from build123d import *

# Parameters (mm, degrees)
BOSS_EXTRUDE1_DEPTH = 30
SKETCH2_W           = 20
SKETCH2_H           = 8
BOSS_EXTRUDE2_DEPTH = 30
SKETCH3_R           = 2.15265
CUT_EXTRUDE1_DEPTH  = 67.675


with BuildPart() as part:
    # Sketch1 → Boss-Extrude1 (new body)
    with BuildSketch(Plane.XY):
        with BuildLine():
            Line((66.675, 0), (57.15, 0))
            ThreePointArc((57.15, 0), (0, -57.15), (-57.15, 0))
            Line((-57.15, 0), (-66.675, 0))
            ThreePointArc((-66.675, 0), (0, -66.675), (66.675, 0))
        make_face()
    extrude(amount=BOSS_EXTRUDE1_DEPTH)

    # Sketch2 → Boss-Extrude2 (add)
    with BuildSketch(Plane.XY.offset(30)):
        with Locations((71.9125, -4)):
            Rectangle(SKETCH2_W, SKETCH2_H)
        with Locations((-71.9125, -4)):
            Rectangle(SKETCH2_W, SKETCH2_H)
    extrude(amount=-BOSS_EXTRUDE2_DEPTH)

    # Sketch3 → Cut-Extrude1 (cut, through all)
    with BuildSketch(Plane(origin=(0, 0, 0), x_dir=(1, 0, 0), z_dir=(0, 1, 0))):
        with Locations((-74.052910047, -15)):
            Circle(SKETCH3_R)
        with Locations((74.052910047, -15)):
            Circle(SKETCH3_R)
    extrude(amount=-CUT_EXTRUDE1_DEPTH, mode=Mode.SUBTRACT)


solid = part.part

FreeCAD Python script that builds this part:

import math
import FreeCAD as App
import Part
import Sketcher

V = App.Vector


def add_polygon(sketch, points):
    """Adds a closed chain of lines whose ends are joined by coincident constraints."""
    first, n = sketch.GeometryCount, len(points)
    for a, b in zip(points, points[1:] + points[:1]):
        sketch.addGeometry(Part.LineSegment(App.Vector(*a, 0), App.Vector(*b, 0)), False)
    for i in range(n):
        sketch.addConstraint(Sketcher.Constraint("Coincident", first + i, 2, first + (i + 1) % n, 1))

doc = App.newDocument("Part")
body = doc.addObject("PartDesign::Body", "Body")

# Sketch on XY plane
sketch1 = body.newObject("Sketcher::SketchObject", "Sketch")
sketch1.AttachmentSupport = (doc.getObject("XY_Plane"), [""])
sketch1.MapMode = "FlatFace"
sketch1.addGeometry(Part.LineSegment(V(66.675, 0, 0), V(57.15, 0, 0)), False)
sketch1.addGeometry(Part.ArcOfCircle(Part.Circle(V(0, 0, 0), V(0, 0, 1), 57.15), math.radians(180), math.radians(360)), False)
sketch1.addGeometry(Part.LineSegment(V(-57.15, 0, 0), V(-66.675, 0, 0)), False)
sketch1.addGeometry(Part.ArcOfCircle(Part.Circle(V(0, 0, 0), V(0, 0, 1), 66.675), math.radians(180), math.radians(360)), False)
sketch1.addConstraint(Sketcher.Constraint("Coincident", 0, 2, 1, 2))
sketch1.addConstraint(Sketcher.Constraint("Coincident", 1, 1, 2, 1))
sketch1.addConstraint(Sketcher.Constraint("Coincident", 2, 2, 3, 1))
sketch1.addConstraint(Sketcher.Constraint("Coincident", 3, 2, 0, 1))
sketch1.addConstraint(Sketcher.Constraint("Horizontal", 0))
sketch1.addConstraint(Sketcher.Constraint("Horizontal", 2))
sketch1.addConstraint(Sketcher.Constraint("Coincident", 1, 3, -1, 1))
sketch1.addConstraint(Sketcher.Constraint("Coincident", 3, 3, -1, 1))
sketch1.addConstraint(Sketcher.Constraint("PointOnObject", 0, 2, -1))
sketch1.addConstraint(Sketcher.Constraint("PointOnObject", 1, 1, -1))
sketch1.addConstraint(Sketcher.Constraint("Radius", 1, 57.15))
sketch1.addConstraint(Sketcher.Constraint("Radius", 3, 66.675))
pad1 = body.newObject("PartDesign::Pad", "Pad")
pad1.Profile = sketch1
pad1.Length = 30

# Sketch on XY plane
sketch2 = body.newObject("Sketcher::SketchObject", "Sketch001")
sketch2.AttachmentSupport = (doc.getObject("XY_Plane"), [""])
sketch2.MapMode = "FlatFace"
sketch2.AttachmentOffset = App.Placement(V(0, 0, 30), App.Rotation())
add_polygon(sketch2, [(61.9125, 0), (61.9125, -8), (81.9125, -8), (81.9125, 0)])  # lines 0-3
add_polygon(sketch2, [(-81.9125, 0), (-81.9125, -8), (-61.9125, -8), (-61.9125, 0)])  # lines 4-7
sketch2.addConstraint(Sketcher.Constraint("Vertical", 0))
sketch2.addConstraint(Sketcher.Constraint("Horizontal", 1))
sketch2.addConstraint(Sketcher.Constraint("Vertical", 2))
sketch2.addConstraint(Sketcher.Constraint("Horizontal", 3))
sketch2.addConstraint(Sketcher.Constraint("Vertical", 4))
sketch2.addConstraint(Sketcher.Constraint("Horizontal", 5))
sketch2.addConstraint(Sketcher.Constraint("Vertical", 6))
sketch2.addConstraint(Sketcher.Constraint("Horizontal", 7))
sketch2.addConstraint(Sketcher.Constraint("Symmetric", 3, 2, 6, 2, -1, 1))
sketch2.addConstraint(Sketcher.Constraint("Symmetric", 1, 2, 4, 2, -2))
sketch2.addConstraint(Sketcher.Constraint("PointOnObject", 2, 2, -1))
sketch2.addConstraint(Sketcher.Constraint("DistanceX", 1, 1, 1, 2, 20.0))
sketch2.addConstraint(Sketcher.Constraint("DistanceY", 0, 2, 0, 1, 8.0))
sketch2.addConstraint(Sketcher.Constraint("DistanceX", 4, 2, 0, 2, 143.825))
pad2 = body.newObject("PartDesign::Pad", "Pad001")
pad2.Profile = sketch2
pad2.Length = 30
pad2.Reversed = True

# Sketch on XZ plane
sketch3 = body.newObject("Sketcher::SketchObject", "Sketch002")
sketch3.AttachmentSupport = (doc.getObject("XZ_Plane"), [""])
sketch3.MapMode = "FlatFace"
sketch3.addGeometry(Part.Circle(V(-74.05291, 15, 0), V(0, 0, 1), 2.15265), False)
sketch3.addGeometry(Part.Circle(V(74.05291, 15, 0), V(0, 0, 1), 2.15265), False)
sketch3.addConstraint(Sketcher.Constraint("Equal", 0, 1))
sketch3.addConstraint(Sketcher.Constraint("Symmetric", 0, 3, 1, 3, -2))
sketch3.addConstraint(Sketcher.Constraint("DistanceY", -1, 1, 0, 3, 15.0))
sketch3.addConstraint(Sketcher.Constraint("Diameter", 0, 4.3053))
sketch3.addConstraint(Sketcher.Constraint("DistanceX", 0, 3, -1, 1, 74.05291))
pocket1 = body.newObject("PartDesign::Pocket", "Pocket")
pocket1.Profile = sketch3
pocket1.Type = "ThroughAll"
pocket1.Reversed = True

doc.recompute()
